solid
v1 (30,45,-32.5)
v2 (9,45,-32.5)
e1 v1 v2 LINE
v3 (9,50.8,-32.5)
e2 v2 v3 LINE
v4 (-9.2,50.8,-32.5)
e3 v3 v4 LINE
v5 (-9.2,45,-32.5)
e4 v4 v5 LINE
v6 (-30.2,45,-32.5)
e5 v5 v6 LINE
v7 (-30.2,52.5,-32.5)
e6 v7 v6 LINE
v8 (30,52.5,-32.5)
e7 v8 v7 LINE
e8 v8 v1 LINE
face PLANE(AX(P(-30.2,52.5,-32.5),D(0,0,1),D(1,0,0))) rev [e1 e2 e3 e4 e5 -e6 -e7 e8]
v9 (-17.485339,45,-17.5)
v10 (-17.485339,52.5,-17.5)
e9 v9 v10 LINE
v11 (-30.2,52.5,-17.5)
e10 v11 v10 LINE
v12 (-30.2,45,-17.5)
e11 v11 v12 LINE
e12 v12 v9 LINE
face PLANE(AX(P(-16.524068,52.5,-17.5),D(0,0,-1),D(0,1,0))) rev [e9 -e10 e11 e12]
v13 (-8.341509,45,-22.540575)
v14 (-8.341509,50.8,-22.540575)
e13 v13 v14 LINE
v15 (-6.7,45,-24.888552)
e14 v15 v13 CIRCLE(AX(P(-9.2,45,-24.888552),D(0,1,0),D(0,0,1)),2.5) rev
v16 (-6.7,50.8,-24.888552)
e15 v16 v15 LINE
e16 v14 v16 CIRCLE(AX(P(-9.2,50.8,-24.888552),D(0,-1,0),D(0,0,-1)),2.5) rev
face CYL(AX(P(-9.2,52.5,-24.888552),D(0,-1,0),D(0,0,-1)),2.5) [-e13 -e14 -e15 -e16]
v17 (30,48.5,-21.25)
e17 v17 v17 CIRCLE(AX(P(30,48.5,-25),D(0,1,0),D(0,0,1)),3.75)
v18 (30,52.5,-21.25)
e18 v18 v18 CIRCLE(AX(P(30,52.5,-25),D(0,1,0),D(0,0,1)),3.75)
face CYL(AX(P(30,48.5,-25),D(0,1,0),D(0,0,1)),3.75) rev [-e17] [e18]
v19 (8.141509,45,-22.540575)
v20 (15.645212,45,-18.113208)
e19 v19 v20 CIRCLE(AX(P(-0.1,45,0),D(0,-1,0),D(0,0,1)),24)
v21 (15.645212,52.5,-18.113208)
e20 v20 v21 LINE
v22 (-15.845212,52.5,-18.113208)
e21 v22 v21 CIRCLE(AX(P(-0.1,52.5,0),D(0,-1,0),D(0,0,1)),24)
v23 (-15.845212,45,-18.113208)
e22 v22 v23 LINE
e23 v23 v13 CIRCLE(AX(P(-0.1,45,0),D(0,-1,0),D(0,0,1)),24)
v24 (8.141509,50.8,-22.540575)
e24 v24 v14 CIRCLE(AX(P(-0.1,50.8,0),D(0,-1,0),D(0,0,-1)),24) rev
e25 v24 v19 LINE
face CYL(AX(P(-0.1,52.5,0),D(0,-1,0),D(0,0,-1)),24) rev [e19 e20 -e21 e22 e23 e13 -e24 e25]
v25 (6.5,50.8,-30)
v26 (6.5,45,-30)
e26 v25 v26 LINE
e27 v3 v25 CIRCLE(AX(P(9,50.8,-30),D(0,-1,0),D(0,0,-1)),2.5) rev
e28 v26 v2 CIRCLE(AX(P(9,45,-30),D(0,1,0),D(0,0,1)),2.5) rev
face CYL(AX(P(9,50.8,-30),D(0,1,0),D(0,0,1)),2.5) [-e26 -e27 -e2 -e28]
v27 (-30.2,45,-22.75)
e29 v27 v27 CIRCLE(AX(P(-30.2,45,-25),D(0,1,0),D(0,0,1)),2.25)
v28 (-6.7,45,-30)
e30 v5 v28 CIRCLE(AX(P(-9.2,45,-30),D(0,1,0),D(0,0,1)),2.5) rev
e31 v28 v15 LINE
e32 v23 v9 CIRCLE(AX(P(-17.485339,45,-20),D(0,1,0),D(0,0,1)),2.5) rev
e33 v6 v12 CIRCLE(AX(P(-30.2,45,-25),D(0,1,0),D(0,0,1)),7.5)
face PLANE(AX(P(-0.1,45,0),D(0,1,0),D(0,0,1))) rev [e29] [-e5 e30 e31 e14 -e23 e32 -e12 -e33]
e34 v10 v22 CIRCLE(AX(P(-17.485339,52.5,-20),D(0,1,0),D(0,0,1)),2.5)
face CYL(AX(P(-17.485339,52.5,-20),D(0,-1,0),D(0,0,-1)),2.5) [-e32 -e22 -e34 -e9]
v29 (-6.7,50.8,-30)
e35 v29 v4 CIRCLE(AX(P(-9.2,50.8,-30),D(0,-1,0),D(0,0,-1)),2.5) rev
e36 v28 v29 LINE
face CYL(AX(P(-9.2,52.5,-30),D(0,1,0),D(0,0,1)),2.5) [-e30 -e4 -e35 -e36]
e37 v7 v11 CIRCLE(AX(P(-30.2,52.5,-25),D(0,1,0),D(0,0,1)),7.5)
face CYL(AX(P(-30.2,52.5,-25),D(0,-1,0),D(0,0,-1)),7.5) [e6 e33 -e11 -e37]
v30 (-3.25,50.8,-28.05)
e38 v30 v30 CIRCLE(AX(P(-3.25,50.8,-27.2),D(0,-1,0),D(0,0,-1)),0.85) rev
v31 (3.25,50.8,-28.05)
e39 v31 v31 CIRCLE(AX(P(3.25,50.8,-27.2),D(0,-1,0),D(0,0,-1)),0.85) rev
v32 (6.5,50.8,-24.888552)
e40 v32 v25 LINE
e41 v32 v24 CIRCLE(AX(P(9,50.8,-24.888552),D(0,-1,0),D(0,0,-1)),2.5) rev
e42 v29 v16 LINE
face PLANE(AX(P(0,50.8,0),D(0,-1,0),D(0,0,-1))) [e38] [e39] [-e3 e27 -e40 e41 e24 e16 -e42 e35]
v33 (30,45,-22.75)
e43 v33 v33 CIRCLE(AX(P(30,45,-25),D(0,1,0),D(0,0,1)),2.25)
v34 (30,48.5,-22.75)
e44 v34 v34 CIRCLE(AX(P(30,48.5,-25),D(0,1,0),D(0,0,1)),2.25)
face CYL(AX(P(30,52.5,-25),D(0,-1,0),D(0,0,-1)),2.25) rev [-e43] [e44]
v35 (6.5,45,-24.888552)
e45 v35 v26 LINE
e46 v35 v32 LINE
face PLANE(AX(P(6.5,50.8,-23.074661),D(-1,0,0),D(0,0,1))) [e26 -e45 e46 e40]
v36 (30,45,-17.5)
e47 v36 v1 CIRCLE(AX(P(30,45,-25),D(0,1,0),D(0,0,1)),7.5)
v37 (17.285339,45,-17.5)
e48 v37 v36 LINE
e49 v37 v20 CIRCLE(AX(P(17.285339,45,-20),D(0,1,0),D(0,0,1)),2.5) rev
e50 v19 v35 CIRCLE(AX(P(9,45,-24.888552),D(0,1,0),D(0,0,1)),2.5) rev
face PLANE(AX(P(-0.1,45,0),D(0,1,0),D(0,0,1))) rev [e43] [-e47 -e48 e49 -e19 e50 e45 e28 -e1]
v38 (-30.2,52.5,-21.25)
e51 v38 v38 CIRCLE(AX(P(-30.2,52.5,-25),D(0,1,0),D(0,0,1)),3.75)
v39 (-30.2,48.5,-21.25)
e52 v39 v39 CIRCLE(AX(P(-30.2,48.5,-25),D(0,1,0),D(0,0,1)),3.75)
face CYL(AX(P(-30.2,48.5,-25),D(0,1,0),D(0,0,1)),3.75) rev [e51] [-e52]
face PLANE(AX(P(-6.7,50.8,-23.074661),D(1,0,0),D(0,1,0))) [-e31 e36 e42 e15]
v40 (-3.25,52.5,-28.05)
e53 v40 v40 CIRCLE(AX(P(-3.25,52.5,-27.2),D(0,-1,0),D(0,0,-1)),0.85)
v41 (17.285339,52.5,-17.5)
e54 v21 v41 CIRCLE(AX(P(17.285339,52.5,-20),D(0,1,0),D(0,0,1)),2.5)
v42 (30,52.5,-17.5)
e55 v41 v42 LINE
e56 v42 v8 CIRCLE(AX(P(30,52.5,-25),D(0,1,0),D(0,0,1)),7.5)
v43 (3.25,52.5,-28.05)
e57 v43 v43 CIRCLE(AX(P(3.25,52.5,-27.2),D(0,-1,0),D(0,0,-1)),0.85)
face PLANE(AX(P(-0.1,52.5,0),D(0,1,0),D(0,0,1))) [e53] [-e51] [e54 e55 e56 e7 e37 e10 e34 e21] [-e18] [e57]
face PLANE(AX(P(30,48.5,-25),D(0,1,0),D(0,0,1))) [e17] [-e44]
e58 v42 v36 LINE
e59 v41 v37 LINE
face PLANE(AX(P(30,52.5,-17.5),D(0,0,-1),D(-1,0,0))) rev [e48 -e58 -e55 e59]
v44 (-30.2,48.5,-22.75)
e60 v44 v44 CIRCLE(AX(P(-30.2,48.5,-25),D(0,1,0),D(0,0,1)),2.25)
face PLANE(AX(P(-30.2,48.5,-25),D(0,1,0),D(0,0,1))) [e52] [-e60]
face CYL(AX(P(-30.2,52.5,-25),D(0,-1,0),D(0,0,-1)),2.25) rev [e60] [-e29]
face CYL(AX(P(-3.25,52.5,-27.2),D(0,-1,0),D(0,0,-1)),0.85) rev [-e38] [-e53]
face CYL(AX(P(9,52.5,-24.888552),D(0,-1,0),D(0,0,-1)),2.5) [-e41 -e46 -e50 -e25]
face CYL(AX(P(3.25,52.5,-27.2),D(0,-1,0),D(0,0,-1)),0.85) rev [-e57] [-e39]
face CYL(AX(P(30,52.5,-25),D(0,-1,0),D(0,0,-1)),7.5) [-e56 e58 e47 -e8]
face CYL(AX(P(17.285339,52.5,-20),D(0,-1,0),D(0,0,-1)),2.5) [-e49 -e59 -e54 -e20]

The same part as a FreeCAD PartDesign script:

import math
import FreeCAD as App
import Part
import Sketcher

V = App.Vector


def edges_at(feature, points):
    """Names of the edges that pass closest to the given points."""
    edges = feature.Shape.Edges
    near = lambda p: min(range(len(edges)), key=lambda i: edges[i].distToShape(Part.Vertex(*p))[0])
    return sorted({f"Edge{near(p) + 1}" for p in points})


def add_polygon(sketch, points):
    """Adds a closed chain of lines whose ends are joined by coincident constraints."""
    first, n = sketch.GeometryCount, len(points)
    for a, b in zip(points, points[1:] + points[:1]):
        sketch.addGeometry(Part.LineSegment(App.Vector(*a, 0), App.Vector(*b, 0)), False)
    for i in range(n):
        sketch.addConstraint(Sketcher.Constraint("Coincident", first + i, 2, first + (i + 1) % n, 1))

doc = App.newDocument("Part")
params = doc.addObject("Spreadsheet::Sheet", "Params")
for row, (alias, value) in enumerate([
    ("sketch1_radius", "24 mm"),
    ("sketch1_diameter", "4.5 mm"),
    ("sketch1_radius2", "7.5 mm"),
    ("sketch1_width", "60.2 mm"),
    ("pad1_length", "7.5 mm"),
    ("sketch2_diameter", "1.7 mm"),
    ("sketch3_diameter", "1.7 mm"),
    ("sketch3_radius", "2.5 mm"),
    ("sketch3_width", "6.5 mm"),
    ("pad2_length", "1.7 mm"),
    ("sketch4_width", "13.2 mm"),
    ("pocket2_length", "5.8 mm"),
    ("fillet_radius", "2.5 mm"),
    ("sketch5_diameter", "7.5 mm"),
    ("pocket3_length", "4 mm"),
], start=1):
    params.set(f"A{row}", alias)
    params.set(f"B{row}", "=" + value)
    params.setAlias(f"B{row}", alias)

body = doc.addObject("PartDesign::Body", "Body")

sketch1 = doc.addObject("Sketcher::SketchObject", "Sketch")
body.addObject(sketch1)
sketch1.AttachmentSupport = (doc.XZ_Plane, [""])
sketch1.MapMode = "FlatFace"
sketch1.AttachmentOffset = App.Placement(V(0, 0, -45), App.Rotation())
sketch1.addGeometry([
    Part.LineSegment(V(-30.2, -17.5, 0), V(-16.5, -17.5, 0)),
    Part.ArcOfCircle(Part.Circle(V(-0.1, 0, 0), V(0, 0, 1), 24), math.radians(-133), math.radians(-47)),
    Part.LineSegment(V(16.3, -17.5, 0), V(30, -17.5, 0)),
    Part.ArcOfCircle(Part.Circle(V(30, -25, 0), V(0, 0, 1), 7.5), math.radians(-90), math.radians(90)),
    Part.LineSegment(V(30, -32.5, 0), V(-30.2, -32.5, 0)),
    Part.ArcOfCircle(Part.Circle(V(-30.2, -25, 0), V(0, 0, 1), 7.5), math.radians(90), math.radians(270)),
    Part.Circle(V(30, -25, 0), V(0, 0, 1), 2.2),
    Part.Circle(V(-30.2, -25, 0), V(0, 0, 1), 2.2),
], False)
sketch1.addConstraint([
    Sketcher.Constraint("Coincident", 0, 2, 1, 1),
    Sketcher.Constraint("Coincident", 1, 2, 2, 1),
    Sketcher.Constraint("Tangent", 2, 2, 3, 2),
    Sketcher.Constraint("Tangent", 3, 1, 4, 1),
    Sketcher.Constraint("Tangent", 4, 2, 5, 2),
    Sketcher.Constraint("Tangent", 5, 1, 0, 1),
    Sketcher.Constraint("Horizontal", 0),
    Sketcher.Constraint("Horizontal", 2),
    Sketcher.Constraint("Horizontal", 4),
    Sketcher.Constraint("Coincident", 6, 3, 3, 3),
    Sketcher.Constraint("Coincident", 7, 3, 5, 3),
    Sketcher.Constraint("Equal", 3, 5),
    Sketcher.Constraint("Equal", 6, 7),
    Sketcher.Constraint("PointOnObject", 1, 3, -1),
    Sketcher.Constraint("Equal", 0, 2),
    Sketcher.Constraint("Radius", 1, 24.0),
    Sketcher.Constraint("Diameter", 6, 4.5),
    Sketcher.Constraint("Radius", 3, 7.5),
    Sketcher.Constraint("DistanceX", 4, 2, 4, 1, 60.2),
    Sketcher.Constraint("DistanceX", -1, 1, 3, 3, 30.0),
    Sketcher.Constraint("DistanceY", 3, 3, -1, 1, 25.0),
])
sketch1.setExpression("Constraints[15]", "Params.sketch1_radius")
sketch1.setExpression("Constraints[16]", "Params.sketch1_diameter")
sketch1.setExpression("Constraints[17]", "Params.sketch1_radius2")
sketch1.setExpression("Constraints[18]", "Params.sketch1_width")
pad1 = doc.addObject("PartDesign::Pad", "Pad")
body.addObject(pad1)
pad1.Profile = sketch1
pad1.setExpression("Length", "Params.pad1_length")
pad1.Reversed = True

sketch2 = doc.addObject("Sketcher::SketchObject", "Sketch001")
body.addObject(sketch2)
sketch2.AttachmentSupport = (doc.XZ_Plane, [""])
sketch2.MapMode = "FlatFace"
sketch2.AttachmentOffset = App.Placement(V(0, 0, -45), App.Rotation())
sketch2.addGeometry([
    Part.Circle(V(-3.2, -27.2, 0), V(0, 0, 1), 0.8),
    Part.Circle(V(3.2, -27.2, 0), V(0, 0, 1), 0.8),
], False)
sketch2.addConstraint([
    Sketcher.Constraint("Equal", 0, 1),
    Sketcher.Constraint("Symmetric", 0, 3, 1, 3, -2),
    Sketcher.Constraint("Diameter", 0, 1.7),
    Sketcher.Constraint("DistanceY", 0, 3, -1, 1, 27.2),
    Sketcher.Constraint("DistanceX", 0, 3, 1, 3, 6.5),
])
sketch2.setExpression("Constraints[2]", "Params.sketch2_diameter")
pocket1 = doc.addObject("PartDesign::Pocket", "Pocket")
body.addObject(pocket1)
pocket1.Profile = sketch2
pocket1.Type = "ThroughAll"

sketch3 = doc.addObject("Sketcher::SketchObject", "Sketch002")
body.addObject(sketch3)
sketch3.AttachmentSupport = (doc.XZ_Plane, [""])
sketch3.MapMode = "FlatFace"
sketch3.AttachmentOffset = App.Placement(V(0, 0, -52.5), App.Rotation())
sketch3.addGeometry([
    Part.LineSegment(V(3.2, -24.7, 0), V(-3.2, -24.7, 0)),
    Part.ArcOfCircle(Part.Circle(V(-3.2, -27.2, 0), V(0, 0, 1), 2.5), math.radians(90), math.radians(270)),
    Part.LineSegment(V(-3.2, -29.7, 0), V(3.2, -29.7, 0)),
    Part.ArcOfCircle(Part.Circle(V(3.2, -27.2, 0), V(0, 0, 1), 2.5), math.radians(-90), math.radians(90)),
    Part.Circle(V(3.2, -27.2, 0), V(0, 0, 1), 0.8),
    Part.Circle(V(-3.2, -27.2, 0), V(0, 0, 1), 0.8),
], False)
sketch3.addConstraint([
    Sketcher.Constraint("Tangent", 0, 2, 1, 1),
    Sketcher.Constraint("Tangent", 1, 2, 2, 1),
    Sketcher.Constraint("Tangent", 2, 2, 3, 1),
    Sketcher.Constraint("Tangent", 3, 2, 0, 1),
    Sketcher.Constraint("Horizontal", 0),
    Sketcher.Constraint("Horizontal", 2),
    Sketcher.Constraint("Coincident", 4, 3, 3, 3),
    Sketcher.Constraint("Coincident", 5, 3, 1, 3),
    Sketcher.Constraint("Equal", 4, 5),
    Sketcher.Constraint("Diameter", 4, 1.7),
    Sketcher.Constraint("Radius", 1, 2.5),
    Sketcher.Constraint("DistanceX", 0, 2, 0, 1, 6.5),
    Sketcher.Constraint("DistanceY", 1, 3, -1, 1, 27.2),
    Sketcher.Constraint("DistanceX", 1, 3, -1, 1, 3.25),
])
sketch3.setExpression("Constraints[9]", "Params.sketch3_diameter")
sketch3.setExpression("Constraints[10]", "Params.sketch3_radius")
sketch3.setExpression("Constraints[11]", "Params.sketch3_width")
pad2 = doc.addObject("PartDesign::Pad", "Pad001")
body.addObject(pad2)
pad2.Profile = sketch3
pad2.setExpression("Length", "Params.pad2_length")

sketch4 = doc.addObject("Sketcher::SketchObject", "Sketch003")
body.addObject(sketch4)
sketch4.AttachmentSupport = (doc.XZ_Plane, [""])
sketch4.MapMode = "FlatFace"
sketch4.AttachmentOffset = App.Placement(V(0, 0, -45), App.Rotation())
add_polygon(sketch4, [(-7, -32), (-7, -23), (6, -23), (6, -32)])
sketch4.addConstraint([
    Sketcher.Constraint("Vertical", 0),
    Sketcher.Constraint("Horizontal", 1),
    Sketcher.Constraint("Vertical", 2),
    Sketcher.Constraint("Horizontal", 3),
    Sketcher.Constraint("DistanceX", 1, 1, 1, 2, 13.2),
    Sketcher.Constraint("DistanceX", 0, 2, -1, 1, 6.7),
    Sketcher.Constraint("DistanceY", 2, 2, -1, 1, 32.5),
    Sketcher.Constraint("DistanceY", 0, 1, 0, 2, 9.425339),
])
sketch4.setExpression("Constraints[8]", "Params.sketch4_width")
pocket2 = doc.addObject("PartDesign::Pocket", "Pocket001")
body.addObject(pocket2)
pocket2.Profile = sketch4
pocket2.setExpression("Length", "Params.pocket2_length")
doc.recompute()

fillet = doc.addObject("PartDesign::Fillet", "Fillet")
body.addObject(fillet)
fillet.Base = (pocket2, edges_at(pocket2, [
    (-16.524, 48.75, -17.5),
    (16.324, 48.75, -17.5),
    (-6.7, 47.9, -32.5),
    (-6.7, 47.9, -23.075),
    (6.5, 47.9, -23.075),
    (6.5, 47.9, -32.5),
]))
fillet.setExpression("Radius", "Params.fillet_radius")

sketch5 = doc.addObject("Sketcher::SketchObject", "Sketch004")
body.addObject(sketch5)
sketch5.AttachmentSupport = (doc.XZ_Plane, [""])
sketch5.MapMode = "FlatFace"
sketch5.AttachmentOffset = App.Placement(V(0, 0, -52.5), App.Rotation())
sketch5.addGeometry([
    Part.Circle(V(-30.2, -25, 0), V(0, 0, 1), 3.8),
    Part.Circle(V(30, -25, 0), V(0, 0, 1), 3.8),
], False)
sketch5.addConstraint([
    Sketcher.Constraint("Equal", 0, 1),
    Sketcher.Constraint("Horizontal", 0, 3, 1, 3),
    Sketcher.Constraint("Diameter", 0, 7.5),
    Sketcher.Constraint("DistanceY", 0, 3, -1, 1, 25.0),
    Sketcher.Constraint("DistanceX", -1, 1, 1, 3, 30.0),
    Sketcher.Constraint("DistanceX", 0, 3, -1, 1, 30.2),
])
sketch5.setExpression("Constraints[2]", "Params.sketch5_diameter")
pocket3 = doc.addObject("PartDesign::Pocket", "Pocket002")
body.addObject(pocket3)
pocket3.Profile = sketch5
pocket3.setExpression("Length", "Params.pocket3_length")
pocket3.Reversed = True

doc.recompute()
